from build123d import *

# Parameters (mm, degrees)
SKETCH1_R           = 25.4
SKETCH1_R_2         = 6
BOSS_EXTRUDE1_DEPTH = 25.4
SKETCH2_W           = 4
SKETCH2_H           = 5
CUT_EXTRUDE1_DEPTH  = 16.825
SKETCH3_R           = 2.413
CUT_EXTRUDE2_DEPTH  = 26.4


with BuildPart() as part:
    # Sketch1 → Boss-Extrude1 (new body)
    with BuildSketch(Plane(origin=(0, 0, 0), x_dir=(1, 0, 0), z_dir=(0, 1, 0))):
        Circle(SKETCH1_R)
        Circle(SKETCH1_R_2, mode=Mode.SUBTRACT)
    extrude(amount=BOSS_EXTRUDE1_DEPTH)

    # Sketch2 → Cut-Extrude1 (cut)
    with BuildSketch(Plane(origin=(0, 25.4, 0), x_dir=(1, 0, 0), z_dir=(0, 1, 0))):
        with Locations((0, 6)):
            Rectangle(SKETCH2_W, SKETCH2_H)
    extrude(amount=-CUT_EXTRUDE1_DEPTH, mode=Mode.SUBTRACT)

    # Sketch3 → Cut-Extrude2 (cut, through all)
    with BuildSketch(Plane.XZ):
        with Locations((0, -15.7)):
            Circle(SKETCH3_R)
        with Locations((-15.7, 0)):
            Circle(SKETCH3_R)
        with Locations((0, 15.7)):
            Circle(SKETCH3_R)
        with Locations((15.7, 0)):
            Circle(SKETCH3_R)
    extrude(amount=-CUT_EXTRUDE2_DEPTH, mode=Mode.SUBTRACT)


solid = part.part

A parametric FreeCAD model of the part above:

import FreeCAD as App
import Part
import Sketcher

V = App.Vector
Q = App.Units.Quantity

doc = App.newDocument("Part")
body = doc.addObject("PartDesign::Body", "Body")

# Sketch on XZ plane
sketch1 = doc.addObject("Sketcher::SketchObject", "Sketch")
body.addObject(sketch1)
sketch1.AttachmentSupport = (doc.XZ_Plane, [""])
sketch1.MapMode = "FlatFace"
sketch1.addGeometry([
    Part.Circle(V(0, 0, 0), V(0, 0, 1), 25.4),
    Part.Circle(V(0, 0, 0), V(0, 0, 1), 6),
], False)
sketch1.addConstraint([
    Sketcher.Constraint("Coincident", 0, 3, -1, 1),
    Sketcher.Constraint("Coincident", 1, 3, -1, 1),
    Sketcher.Constraint("Diameter", 1, Q("12 mm")),
    Sketcher.Constraint("Diameter", 0, Q("50.8 mm")),
])
pad1 = doc.addObject("PartDesign::Pad", "Pad")
body.addObject(pad1)
pad1.Profile = sketch1
pad1.Length = 25.4
pad1.Reversed = True

# Sketch on XZ plane
sketch2 = doc.addObject("Sketcher::SketchObject", "Sketch001")
body.addObject(sketch2)
sketch2.AttachmentSupport = (doc.XZ_Plane, [""])
sketch2.MapMode = "FlatFace"
sketch2.AttachmentOffset = App.Placement(V(0, 0, -25.4), App.Rotation())
sketch2.addGeometry([
    Part.LineSegment(V(-2, -8.5, 0), V(-2, -3.5, 0)),
    Part.LineSegment(V(-2, -3.5, 0), V(2, -3.5, 0)),
    Part.LineSegment(V(2, -3.5, 0), V(2, -8.5, 0)),
    Part.LineSegment(V(2, -8.5, 0), V(-2, -8.5, 0)),
], False)
sketch2.addConstraint([
    Sketcher.Constraint("Coincident", 0, 2, 1, 1),
    Sketcher.Constraint("Coincident", 1, 2, 2, 1),
    Sketcher.Constraint("Coincident", 2, 2, 3, 1),
    Sketcher.Constraint("Coincident", 3, 2, 0, 1),
    Sketcher.Constraint("Vertical", 0),
    Sketcher.Constraint("Horizontal", 1),
    Sketcher.Constraint("Vertical", 2),
    Sketcher.Constraint("Horizontal", 3),
    Sketcher.Constraint("DistanceX", 1, 1, 1, 2, Q("4 mm")),
    Sketcher.Constraint("DistanceY", 0, 1, 0, 2, Q("5 mm")),
    Sketcher.Constraint("DistanceX", 0, 2, -1, 1, Q("2 mm")),
    Sketcher.Constraint("DistanceY", 0, 2, -1, 1, Q("3.5 mm")),
])
pocket1 = doc.addObject("PartDesign::Pocket", "Pocket")
body.addObject(pocket1)
pocket1.Profile = sketch2
pocket1.Length = 16.825
pocket1.Reversed = True

# Sketch on XZ plane
sketch3 = doc.addObject("Sketcher::SketchObject", "Sketch002")
body.addObject(sketch3)
sketch3.AttachmentSupport = (doc.XZ_Plane, [""])
sketch3.MapMode = "FlatFace"
sketch3.addGeometry([
    Part.Circle(V(0, -15.7, 0), V(0, 0, 1), 2.413),
    Part.Circle(V(-15.7, 0, 0), V(0, 0, 1), 2.413),
    Part.Circle(V(0, 15.7, 0), V(0, 0, 1), 2.413),
    Part.Circle(V(15.7, 0, 0), V(0, 0, 1), 2.413),
], False)
sketch3.addConstraint([
    Sketcher.Constraint("Equal", 0, 1),
    Sketcher.Constraint("Equal", 1, 2),
    Sketcher.Constraint("Equal", 2, 3),
    Sketcher.Constraint("Symmetric", 0, 3, 2, 3, -1, 1),
    Sketcher.Constraint("Symmetric", 1, 3, 3, 3, -1, 1),
    Sketcher.Constraint("PointOnObject", 0, 3, -2),
    Sketcher.Constraint("PointOnObject", 1, 3, -1),
    Sketcher.Constraint("Diameter", 0, Q("4.826 mm")),
    Sketcher.Constraint("DistanceY", 0, 3, -1, 1, Q("15.7 mm")),
    Sketcher.Constraint("DistanceX", 1, 3, -1, 1, Q("15.7 mm")),
])
pocket2 = doc.addObject("PartDesign::Pocket", "Pocket001")
body.addObject(pocket2)
pocket2.Profile = sketch3
pocket2.Type = "ThroughAll"

doc.recompute()
